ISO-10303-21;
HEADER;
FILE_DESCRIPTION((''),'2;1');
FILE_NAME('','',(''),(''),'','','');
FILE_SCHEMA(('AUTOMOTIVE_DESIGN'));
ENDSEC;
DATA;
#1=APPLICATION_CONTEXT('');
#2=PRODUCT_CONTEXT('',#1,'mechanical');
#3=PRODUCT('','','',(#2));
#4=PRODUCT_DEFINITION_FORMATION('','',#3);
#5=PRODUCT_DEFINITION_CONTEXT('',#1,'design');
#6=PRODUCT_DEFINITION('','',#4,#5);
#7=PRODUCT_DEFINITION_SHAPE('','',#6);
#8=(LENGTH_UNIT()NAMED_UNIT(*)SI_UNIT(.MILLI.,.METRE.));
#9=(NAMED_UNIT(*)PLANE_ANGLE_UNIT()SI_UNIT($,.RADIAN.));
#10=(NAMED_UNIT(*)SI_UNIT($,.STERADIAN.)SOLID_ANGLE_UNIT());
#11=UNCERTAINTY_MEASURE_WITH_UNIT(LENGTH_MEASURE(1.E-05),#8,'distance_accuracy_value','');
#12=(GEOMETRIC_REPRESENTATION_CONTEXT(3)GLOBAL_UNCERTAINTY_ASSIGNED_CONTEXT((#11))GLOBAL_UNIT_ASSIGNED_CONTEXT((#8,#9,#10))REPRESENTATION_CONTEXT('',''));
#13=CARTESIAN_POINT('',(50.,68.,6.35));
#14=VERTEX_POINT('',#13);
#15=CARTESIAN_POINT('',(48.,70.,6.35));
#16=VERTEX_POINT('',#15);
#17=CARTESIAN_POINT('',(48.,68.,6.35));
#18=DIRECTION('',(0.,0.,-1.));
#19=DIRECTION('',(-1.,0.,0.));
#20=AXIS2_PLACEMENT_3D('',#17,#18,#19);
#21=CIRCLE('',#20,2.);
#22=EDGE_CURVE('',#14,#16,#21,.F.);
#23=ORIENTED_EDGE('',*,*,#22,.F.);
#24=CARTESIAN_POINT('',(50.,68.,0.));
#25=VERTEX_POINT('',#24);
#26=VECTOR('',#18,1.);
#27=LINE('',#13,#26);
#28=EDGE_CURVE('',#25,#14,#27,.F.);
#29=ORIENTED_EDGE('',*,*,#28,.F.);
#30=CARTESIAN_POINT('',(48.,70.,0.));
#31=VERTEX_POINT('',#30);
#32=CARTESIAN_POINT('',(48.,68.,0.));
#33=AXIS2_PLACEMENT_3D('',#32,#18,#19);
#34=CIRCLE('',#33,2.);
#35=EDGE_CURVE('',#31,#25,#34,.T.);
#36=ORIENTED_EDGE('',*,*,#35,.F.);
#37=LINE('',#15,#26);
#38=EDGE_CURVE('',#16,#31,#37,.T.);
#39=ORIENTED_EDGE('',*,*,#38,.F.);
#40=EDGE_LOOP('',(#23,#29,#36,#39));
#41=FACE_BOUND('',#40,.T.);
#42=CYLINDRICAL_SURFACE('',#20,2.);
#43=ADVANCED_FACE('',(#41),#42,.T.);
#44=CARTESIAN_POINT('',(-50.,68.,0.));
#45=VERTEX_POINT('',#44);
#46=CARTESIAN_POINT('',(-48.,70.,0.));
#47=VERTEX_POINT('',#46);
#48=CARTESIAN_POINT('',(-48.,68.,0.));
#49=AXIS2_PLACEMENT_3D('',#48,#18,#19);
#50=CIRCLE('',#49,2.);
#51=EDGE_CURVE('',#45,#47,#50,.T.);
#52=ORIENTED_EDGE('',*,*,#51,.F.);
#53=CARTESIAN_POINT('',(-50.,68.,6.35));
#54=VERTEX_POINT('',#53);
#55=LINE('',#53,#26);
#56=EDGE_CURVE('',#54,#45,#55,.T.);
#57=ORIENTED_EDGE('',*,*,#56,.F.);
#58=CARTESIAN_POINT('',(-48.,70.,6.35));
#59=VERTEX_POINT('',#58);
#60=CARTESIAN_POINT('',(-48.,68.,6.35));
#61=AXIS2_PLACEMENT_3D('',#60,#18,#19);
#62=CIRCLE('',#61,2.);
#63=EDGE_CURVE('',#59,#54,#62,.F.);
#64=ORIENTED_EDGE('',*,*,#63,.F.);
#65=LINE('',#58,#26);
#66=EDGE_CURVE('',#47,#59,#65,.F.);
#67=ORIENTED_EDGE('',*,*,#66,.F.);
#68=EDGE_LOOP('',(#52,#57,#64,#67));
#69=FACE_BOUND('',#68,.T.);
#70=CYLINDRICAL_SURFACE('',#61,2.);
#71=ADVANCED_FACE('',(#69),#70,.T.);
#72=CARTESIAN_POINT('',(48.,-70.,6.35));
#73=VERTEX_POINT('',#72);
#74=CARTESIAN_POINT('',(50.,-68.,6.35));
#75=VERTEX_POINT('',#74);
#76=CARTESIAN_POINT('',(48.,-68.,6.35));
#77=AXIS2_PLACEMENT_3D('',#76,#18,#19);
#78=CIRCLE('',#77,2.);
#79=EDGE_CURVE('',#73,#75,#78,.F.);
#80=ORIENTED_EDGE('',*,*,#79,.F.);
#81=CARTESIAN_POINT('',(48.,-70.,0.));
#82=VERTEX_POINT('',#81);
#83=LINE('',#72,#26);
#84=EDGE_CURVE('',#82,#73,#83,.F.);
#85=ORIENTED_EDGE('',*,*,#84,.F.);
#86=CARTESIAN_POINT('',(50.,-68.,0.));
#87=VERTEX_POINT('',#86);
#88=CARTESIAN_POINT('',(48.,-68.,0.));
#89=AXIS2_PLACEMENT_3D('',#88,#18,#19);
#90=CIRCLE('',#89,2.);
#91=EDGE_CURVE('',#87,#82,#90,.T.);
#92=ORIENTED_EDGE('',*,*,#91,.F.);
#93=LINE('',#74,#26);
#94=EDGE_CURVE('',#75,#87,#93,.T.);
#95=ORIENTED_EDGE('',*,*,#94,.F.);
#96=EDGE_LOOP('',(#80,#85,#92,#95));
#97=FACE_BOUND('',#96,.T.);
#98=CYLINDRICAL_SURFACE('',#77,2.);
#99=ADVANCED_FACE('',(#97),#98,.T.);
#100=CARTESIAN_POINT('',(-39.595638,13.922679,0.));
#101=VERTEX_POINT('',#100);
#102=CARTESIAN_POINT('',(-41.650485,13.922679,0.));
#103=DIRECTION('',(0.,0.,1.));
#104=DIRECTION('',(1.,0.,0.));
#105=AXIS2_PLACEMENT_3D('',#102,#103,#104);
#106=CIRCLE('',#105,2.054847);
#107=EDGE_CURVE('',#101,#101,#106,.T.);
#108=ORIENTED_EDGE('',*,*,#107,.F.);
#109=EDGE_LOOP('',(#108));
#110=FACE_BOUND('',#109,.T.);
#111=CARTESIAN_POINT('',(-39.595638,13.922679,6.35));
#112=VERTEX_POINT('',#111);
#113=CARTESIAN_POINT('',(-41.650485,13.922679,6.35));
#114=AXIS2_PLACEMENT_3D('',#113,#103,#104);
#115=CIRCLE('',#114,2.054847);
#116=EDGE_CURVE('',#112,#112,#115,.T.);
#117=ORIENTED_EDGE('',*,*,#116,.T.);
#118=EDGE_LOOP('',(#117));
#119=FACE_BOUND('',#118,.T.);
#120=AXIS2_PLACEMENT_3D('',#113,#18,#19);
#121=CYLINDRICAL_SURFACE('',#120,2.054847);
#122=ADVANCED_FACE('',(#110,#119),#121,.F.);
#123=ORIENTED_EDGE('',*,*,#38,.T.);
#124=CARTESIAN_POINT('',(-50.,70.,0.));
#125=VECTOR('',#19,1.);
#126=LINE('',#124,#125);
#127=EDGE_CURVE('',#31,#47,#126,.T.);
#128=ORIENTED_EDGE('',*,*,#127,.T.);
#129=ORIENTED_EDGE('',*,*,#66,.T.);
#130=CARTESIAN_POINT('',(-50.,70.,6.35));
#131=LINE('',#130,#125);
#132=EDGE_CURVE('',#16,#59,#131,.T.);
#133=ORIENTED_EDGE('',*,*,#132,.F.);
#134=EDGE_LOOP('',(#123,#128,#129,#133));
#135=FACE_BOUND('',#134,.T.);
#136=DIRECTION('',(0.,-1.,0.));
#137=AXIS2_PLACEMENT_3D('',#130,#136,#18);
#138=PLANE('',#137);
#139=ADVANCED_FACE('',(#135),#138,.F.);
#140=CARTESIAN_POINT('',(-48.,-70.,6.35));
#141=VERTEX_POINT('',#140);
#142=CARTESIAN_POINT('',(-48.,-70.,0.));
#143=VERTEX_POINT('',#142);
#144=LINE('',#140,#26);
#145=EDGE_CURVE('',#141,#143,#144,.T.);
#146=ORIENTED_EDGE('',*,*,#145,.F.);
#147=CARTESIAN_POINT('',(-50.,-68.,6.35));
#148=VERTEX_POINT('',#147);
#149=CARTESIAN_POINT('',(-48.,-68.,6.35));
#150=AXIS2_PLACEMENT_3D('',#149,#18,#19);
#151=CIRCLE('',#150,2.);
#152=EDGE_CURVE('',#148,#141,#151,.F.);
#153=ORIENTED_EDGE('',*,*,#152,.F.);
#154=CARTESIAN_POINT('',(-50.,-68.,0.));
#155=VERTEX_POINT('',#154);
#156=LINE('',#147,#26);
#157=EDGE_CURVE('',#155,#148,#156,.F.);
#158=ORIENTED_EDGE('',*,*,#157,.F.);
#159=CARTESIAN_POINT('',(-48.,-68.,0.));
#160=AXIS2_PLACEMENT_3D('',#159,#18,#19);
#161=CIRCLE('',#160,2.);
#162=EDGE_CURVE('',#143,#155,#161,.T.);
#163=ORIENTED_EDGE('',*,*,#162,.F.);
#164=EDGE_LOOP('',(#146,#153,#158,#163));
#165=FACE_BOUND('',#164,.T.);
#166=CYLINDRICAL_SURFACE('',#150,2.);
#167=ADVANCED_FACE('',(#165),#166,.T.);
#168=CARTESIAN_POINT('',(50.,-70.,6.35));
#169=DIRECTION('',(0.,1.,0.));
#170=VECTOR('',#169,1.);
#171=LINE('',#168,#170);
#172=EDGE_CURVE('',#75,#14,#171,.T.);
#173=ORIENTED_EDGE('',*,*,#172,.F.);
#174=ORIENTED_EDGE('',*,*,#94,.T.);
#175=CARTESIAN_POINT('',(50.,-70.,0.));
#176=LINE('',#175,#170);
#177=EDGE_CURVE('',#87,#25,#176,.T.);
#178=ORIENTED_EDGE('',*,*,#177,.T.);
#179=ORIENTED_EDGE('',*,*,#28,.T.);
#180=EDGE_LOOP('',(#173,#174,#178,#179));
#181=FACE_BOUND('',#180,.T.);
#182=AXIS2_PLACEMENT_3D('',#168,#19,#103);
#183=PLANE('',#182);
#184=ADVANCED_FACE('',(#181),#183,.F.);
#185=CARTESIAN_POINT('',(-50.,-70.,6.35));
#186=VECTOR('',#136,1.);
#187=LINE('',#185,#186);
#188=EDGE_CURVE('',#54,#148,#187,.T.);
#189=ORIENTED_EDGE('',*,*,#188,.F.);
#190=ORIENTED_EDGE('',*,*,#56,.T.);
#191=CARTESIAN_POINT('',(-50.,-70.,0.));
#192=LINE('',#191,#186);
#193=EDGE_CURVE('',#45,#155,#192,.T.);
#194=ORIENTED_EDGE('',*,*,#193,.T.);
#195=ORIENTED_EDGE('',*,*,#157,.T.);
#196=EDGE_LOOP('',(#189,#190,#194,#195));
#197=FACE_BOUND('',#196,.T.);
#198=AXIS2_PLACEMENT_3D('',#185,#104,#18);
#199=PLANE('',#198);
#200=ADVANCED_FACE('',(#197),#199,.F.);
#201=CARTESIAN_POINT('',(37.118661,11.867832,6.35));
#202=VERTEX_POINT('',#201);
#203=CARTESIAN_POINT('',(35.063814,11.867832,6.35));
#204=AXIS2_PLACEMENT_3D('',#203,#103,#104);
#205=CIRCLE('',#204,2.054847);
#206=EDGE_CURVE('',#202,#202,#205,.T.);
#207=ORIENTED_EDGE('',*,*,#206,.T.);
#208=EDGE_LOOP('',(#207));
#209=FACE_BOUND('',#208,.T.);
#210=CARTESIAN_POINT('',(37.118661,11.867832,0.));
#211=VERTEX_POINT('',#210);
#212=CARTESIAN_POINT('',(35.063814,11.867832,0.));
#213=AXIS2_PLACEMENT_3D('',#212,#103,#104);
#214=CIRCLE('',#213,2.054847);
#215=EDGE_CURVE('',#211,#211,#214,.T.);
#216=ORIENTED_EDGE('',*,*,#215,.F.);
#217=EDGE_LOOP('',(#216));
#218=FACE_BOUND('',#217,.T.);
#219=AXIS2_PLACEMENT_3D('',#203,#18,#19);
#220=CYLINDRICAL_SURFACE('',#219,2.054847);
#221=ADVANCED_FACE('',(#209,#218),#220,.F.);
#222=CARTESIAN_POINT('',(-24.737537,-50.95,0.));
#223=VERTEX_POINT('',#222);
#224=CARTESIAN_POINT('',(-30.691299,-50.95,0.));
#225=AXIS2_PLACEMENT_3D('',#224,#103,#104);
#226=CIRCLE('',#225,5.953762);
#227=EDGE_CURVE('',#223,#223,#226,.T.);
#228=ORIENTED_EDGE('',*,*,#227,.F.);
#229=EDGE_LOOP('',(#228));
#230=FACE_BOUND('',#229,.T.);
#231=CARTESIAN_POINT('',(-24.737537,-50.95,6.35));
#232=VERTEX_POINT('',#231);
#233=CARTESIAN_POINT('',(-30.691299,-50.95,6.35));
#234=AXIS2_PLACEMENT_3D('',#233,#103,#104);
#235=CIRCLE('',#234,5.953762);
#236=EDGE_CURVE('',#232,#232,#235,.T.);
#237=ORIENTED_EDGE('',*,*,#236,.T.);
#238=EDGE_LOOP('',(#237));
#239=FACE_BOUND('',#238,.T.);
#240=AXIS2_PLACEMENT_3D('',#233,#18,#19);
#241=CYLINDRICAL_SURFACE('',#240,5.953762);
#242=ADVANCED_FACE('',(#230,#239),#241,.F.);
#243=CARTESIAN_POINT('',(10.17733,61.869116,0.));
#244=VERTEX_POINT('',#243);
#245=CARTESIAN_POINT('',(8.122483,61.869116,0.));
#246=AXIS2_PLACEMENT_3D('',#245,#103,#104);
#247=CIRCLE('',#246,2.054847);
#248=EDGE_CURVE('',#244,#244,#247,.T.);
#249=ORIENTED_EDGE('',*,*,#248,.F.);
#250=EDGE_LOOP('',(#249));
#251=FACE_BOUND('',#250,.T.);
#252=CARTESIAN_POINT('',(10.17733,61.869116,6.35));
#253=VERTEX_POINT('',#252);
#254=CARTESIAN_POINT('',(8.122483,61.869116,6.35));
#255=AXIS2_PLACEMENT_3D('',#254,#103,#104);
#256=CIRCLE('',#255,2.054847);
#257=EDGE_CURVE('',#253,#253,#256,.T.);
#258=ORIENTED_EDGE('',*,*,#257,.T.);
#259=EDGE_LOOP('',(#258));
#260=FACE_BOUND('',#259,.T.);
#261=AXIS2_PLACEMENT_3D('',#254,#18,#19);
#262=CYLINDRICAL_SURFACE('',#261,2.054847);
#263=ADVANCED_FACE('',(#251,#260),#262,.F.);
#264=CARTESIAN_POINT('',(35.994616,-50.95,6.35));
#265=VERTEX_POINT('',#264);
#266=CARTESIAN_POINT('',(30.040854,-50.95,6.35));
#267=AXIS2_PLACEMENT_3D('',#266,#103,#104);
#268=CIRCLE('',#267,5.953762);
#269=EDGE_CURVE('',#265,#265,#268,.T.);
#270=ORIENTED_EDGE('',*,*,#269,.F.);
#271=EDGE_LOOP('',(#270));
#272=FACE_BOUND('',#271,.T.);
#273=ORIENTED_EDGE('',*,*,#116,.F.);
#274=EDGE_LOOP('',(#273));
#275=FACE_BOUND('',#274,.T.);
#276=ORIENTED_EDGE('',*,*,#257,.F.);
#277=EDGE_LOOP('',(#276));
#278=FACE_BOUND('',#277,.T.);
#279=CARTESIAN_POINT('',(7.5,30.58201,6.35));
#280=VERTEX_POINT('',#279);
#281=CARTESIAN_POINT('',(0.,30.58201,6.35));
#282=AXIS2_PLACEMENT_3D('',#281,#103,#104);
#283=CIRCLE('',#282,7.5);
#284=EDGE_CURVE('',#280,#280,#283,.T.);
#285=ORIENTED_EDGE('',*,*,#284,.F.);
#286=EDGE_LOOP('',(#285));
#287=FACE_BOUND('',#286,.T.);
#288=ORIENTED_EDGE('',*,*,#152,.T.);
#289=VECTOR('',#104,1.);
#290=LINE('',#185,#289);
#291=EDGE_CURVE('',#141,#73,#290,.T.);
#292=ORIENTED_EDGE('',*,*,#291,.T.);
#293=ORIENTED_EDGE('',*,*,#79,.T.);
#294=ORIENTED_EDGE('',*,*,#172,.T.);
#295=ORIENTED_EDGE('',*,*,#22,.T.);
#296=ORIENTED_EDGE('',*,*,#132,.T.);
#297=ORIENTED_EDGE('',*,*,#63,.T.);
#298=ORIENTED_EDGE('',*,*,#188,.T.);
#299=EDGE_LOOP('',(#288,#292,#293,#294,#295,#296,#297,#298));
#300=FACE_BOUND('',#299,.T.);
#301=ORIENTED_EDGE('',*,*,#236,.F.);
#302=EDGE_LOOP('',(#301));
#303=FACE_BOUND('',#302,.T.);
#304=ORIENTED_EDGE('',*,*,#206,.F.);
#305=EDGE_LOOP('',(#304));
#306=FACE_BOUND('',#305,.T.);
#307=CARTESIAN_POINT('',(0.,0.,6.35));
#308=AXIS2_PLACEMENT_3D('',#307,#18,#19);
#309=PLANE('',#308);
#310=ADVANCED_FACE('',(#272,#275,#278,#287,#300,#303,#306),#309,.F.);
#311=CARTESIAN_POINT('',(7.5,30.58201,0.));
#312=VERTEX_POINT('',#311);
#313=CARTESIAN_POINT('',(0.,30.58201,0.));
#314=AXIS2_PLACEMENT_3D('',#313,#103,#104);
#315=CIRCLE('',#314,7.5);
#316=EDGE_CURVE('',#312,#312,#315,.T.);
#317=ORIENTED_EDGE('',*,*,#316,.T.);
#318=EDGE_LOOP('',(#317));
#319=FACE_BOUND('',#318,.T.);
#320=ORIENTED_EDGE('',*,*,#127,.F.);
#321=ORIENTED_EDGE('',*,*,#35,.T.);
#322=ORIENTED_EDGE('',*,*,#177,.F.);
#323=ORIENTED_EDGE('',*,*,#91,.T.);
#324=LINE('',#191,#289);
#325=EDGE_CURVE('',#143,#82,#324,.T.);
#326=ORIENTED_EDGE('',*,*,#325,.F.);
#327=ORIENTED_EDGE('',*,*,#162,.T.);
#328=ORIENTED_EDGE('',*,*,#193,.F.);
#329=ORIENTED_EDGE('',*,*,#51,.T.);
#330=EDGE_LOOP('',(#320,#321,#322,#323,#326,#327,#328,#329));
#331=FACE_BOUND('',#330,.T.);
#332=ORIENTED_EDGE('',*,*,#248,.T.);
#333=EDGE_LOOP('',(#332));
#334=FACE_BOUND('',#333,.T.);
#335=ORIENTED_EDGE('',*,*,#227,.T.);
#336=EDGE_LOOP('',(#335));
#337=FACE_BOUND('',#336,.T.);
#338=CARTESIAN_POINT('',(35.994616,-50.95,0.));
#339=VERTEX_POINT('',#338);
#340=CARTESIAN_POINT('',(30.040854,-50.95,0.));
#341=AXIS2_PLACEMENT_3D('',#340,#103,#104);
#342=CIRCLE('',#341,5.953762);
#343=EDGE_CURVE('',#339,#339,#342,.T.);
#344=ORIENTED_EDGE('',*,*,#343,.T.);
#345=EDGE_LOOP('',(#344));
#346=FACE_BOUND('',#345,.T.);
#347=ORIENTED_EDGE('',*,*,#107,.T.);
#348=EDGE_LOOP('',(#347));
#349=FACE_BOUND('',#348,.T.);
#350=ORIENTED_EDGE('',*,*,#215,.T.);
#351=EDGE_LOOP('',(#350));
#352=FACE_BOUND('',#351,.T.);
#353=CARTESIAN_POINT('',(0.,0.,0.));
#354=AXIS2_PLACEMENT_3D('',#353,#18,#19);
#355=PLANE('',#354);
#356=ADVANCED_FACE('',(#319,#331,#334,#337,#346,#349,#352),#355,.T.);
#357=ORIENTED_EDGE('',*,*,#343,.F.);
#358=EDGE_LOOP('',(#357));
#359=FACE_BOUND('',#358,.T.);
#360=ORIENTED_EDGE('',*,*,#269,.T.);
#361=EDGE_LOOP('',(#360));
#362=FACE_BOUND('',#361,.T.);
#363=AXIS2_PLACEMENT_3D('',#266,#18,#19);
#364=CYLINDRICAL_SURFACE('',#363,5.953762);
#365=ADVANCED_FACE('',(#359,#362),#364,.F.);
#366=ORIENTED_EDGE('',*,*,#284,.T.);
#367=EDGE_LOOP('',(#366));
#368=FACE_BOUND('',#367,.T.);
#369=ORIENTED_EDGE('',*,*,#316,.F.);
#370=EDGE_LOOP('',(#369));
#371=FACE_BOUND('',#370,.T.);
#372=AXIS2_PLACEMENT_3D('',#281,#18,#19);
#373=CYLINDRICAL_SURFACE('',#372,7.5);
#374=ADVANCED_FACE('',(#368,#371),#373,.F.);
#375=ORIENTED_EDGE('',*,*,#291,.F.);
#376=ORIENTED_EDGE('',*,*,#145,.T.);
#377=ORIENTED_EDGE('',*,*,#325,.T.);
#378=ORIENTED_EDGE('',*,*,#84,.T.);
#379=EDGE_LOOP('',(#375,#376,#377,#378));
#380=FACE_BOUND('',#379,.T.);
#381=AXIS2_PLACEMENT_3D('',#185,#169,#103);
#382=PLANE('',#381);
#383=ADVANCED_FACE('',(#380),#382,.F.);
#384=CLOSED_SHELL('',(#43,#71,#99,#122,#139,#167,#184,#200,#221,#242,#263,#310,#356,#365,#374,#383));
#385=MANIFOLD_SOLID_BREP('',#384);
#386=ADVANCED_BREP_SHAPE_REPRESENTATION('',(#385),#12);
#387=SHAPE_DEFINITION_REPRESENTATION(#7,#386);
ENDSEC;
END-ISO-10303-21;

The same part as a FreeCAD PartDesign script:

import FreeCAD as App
import Part
import Sketcher
from FreeCAD import Vector


def edges_at(feature, points):
    """Names of the edges that pass closest to the given points."""
    edges = feature.Shape.Edges
    near = lambda p: min(range(len(edges)), key=lambda i: edges[i].distToShape(Part.Vertex(*p))[0])
    return sorted({f"Edge{near(p) + 1}" for p in points})

doc = App.newDocument("Part")
body = doc.addObject("PartDesign::Body", "Body")

# Sketch on XY plane
sketch1 = doc.addObject("Sketcher::SketchObject", "Sketch")
body.addObject(sketch1)
sketch1.AttachmentSupport = (doc.XY_Plane, [""])
sketch1.MapMode = "FlatFace"
sketch1.addGeometry(Part.LineSegment(Vector(-50, 70, 0), Vector(-50, -70, 0)), False)
sketch1.addGeometry(Part.LineSegment(Vector(-50, -70, 0), Vector(50, -70, 0)), False)
sketch1.addGeometry(Part.LineSegment(Vector(50, -70, 0), Vector(50, 70, 0)), False)
sketch1.addGeometry(Part.LineSegment(Vector(50, 70, 0), Vector(-50, 70, 0)), False)
sketch1.addGeometry(Part.Circle(Vector(-30.691299, -50.95, 0), Vector(0, 0, 1), 5.953762), False)
sketch1.addGeometry(Part.Circle(Vector(30.040854, -50.95, 0), Vector(0, 0, 1), 5.953762), False)
sketch1.addGeometry(Part.Circle(Vector(-41.650485, 13.922679, 0), Vector(0, 0, 1), 2.054847), False)
sketch1.addGeometry(Part.Circle(Vector(0, 30.58201, 0), Vector(0, 0, 1), 7.5), False)
sketch1.addGeometry(Part.Circle(Vector(35.063814, 11.867832, 0), Vector(0, 0, 1), 2.054847), False)
sketch1.addGeometry(Part.Circle(Vector(8.122483, 61.869116, 0), Vector(0, 0, 1), 2.054847), False)
sketch1.addConstraint(Sketcher.Constraint("Coincident", 0, 2, 1, 1))
sketch1.addConstraint(Sketcher.Constraint("Coincident", 1, 2, 2, 1))
sketch1.addConstraint(Sketcher.Constraint("Coincident", 2, 2, 3, 1))
sketch1.addConstraint(Sketcher.Constraint("Coincident", 3, 2, 0, 1))
sketch1.addConstraint(Sketcher.Constraint("Vertical", 0))
sketch1.addConstraint(Sketcher.Constraint("Horizontal", 1))
sketch1.addConstraint(Sketcher.Constraint("Vertical", 2))
sketch1.addConstraint(Sketcher.Constraint("Horizontal", 3))
sketch1.addConstraint(Sketcher.Constraint("Equal", 4, 5))
sketch1.addConstraint(Sketcher.Constraint("Equal", 6, 8))
sketch1.addConstraint(Sketcher.Constraint("Equal", 8, 9))
sketch1.addConstraint(Sketcher.Constraint("Symmetric", 0, 2, 2, 2, -1, 1))
sketch1.addConstraint(Sketcher.Constraint("PointOnObject", 7, 3, -2))
sketch1.addConstraint(Sketcher.Constraint("Horizontal", 4, 3, 5, 3))
sketch1.addConstraint(Sketcher.Constraint("Diameter", 7, 15.0))
sketch1.addConstraint(Sketcher.Constraint("DistanceX", 1, 1, 1, 2, 100.0))
sketch1.addConstraint(Sketcher.Constraint("DistanceY", 0, 2, 0, 1, 140.0))
sketch1.addConstraint(Sketcher.Constraint("DistanceY", 4, 3, -1, 1, 50.95))
sketch1.addConstraint(Sketcher.Constraint("Diameter", 4, 11.907525))
sketch1.addConstraint(Sketcher.Constraint("Diameter", 6, 4.109695))
sketch1.addConstraint(Sketcher.Constraint("DistanceX", 4, 3, -1, 1, 30.691299))
sketch1.addConstraint(Sketcher.Constraint("DistanceX", 6, 3, 8, 3, 76.714299))
sketch1.addConstraint(Sketcher.Constraint("DistanceY", -1, 1, 6, 3, 13.922679))
sketch1.addConstraint(Sketcher.Constraint("DistanceY", -1, 1, 7, 3, 30.58201))
sketch1.addConstraint(Sketcher.Constraint("DistanceY", -1, 1, 8, 3, 11.867832))
sketch1.addConstraint(Sketcher.Constraint("DistanceX", 6, 3, 5, 3, 71.691339))
sketch1.addConstraint(Sketcher.Constraint("DistanceX", 9, 3, 8, 3, 26.941331))
sketch1.addConstraint(Sketcher.Constraint("DistanceX", -1, 1, 5, 3, 30.040854))
sketch1.addConstraint(Sketcher.Constraint("DistanceY", -1, 1, 9, 3, 61.869116))
pad1 = doc.addObject("PartDesign::Pad", "Pad")
body.addObject(pad1)
pad1.Profile = sketch1
pad1.Length = 6.35
doc.recompute()

fillet = doc.addObject("PartDesign::Fillet", "Fillet")
body.addObject(fillet)
fillet.Base = (pad1, edges_at(pad1, [
    (50, -70, 3.175),
    (-50, -70, 3.175),
    (-50, 70, 3.175),
    (50, 70, 3.175),
]))
fillet.Radius = 2

doc.recompute()
